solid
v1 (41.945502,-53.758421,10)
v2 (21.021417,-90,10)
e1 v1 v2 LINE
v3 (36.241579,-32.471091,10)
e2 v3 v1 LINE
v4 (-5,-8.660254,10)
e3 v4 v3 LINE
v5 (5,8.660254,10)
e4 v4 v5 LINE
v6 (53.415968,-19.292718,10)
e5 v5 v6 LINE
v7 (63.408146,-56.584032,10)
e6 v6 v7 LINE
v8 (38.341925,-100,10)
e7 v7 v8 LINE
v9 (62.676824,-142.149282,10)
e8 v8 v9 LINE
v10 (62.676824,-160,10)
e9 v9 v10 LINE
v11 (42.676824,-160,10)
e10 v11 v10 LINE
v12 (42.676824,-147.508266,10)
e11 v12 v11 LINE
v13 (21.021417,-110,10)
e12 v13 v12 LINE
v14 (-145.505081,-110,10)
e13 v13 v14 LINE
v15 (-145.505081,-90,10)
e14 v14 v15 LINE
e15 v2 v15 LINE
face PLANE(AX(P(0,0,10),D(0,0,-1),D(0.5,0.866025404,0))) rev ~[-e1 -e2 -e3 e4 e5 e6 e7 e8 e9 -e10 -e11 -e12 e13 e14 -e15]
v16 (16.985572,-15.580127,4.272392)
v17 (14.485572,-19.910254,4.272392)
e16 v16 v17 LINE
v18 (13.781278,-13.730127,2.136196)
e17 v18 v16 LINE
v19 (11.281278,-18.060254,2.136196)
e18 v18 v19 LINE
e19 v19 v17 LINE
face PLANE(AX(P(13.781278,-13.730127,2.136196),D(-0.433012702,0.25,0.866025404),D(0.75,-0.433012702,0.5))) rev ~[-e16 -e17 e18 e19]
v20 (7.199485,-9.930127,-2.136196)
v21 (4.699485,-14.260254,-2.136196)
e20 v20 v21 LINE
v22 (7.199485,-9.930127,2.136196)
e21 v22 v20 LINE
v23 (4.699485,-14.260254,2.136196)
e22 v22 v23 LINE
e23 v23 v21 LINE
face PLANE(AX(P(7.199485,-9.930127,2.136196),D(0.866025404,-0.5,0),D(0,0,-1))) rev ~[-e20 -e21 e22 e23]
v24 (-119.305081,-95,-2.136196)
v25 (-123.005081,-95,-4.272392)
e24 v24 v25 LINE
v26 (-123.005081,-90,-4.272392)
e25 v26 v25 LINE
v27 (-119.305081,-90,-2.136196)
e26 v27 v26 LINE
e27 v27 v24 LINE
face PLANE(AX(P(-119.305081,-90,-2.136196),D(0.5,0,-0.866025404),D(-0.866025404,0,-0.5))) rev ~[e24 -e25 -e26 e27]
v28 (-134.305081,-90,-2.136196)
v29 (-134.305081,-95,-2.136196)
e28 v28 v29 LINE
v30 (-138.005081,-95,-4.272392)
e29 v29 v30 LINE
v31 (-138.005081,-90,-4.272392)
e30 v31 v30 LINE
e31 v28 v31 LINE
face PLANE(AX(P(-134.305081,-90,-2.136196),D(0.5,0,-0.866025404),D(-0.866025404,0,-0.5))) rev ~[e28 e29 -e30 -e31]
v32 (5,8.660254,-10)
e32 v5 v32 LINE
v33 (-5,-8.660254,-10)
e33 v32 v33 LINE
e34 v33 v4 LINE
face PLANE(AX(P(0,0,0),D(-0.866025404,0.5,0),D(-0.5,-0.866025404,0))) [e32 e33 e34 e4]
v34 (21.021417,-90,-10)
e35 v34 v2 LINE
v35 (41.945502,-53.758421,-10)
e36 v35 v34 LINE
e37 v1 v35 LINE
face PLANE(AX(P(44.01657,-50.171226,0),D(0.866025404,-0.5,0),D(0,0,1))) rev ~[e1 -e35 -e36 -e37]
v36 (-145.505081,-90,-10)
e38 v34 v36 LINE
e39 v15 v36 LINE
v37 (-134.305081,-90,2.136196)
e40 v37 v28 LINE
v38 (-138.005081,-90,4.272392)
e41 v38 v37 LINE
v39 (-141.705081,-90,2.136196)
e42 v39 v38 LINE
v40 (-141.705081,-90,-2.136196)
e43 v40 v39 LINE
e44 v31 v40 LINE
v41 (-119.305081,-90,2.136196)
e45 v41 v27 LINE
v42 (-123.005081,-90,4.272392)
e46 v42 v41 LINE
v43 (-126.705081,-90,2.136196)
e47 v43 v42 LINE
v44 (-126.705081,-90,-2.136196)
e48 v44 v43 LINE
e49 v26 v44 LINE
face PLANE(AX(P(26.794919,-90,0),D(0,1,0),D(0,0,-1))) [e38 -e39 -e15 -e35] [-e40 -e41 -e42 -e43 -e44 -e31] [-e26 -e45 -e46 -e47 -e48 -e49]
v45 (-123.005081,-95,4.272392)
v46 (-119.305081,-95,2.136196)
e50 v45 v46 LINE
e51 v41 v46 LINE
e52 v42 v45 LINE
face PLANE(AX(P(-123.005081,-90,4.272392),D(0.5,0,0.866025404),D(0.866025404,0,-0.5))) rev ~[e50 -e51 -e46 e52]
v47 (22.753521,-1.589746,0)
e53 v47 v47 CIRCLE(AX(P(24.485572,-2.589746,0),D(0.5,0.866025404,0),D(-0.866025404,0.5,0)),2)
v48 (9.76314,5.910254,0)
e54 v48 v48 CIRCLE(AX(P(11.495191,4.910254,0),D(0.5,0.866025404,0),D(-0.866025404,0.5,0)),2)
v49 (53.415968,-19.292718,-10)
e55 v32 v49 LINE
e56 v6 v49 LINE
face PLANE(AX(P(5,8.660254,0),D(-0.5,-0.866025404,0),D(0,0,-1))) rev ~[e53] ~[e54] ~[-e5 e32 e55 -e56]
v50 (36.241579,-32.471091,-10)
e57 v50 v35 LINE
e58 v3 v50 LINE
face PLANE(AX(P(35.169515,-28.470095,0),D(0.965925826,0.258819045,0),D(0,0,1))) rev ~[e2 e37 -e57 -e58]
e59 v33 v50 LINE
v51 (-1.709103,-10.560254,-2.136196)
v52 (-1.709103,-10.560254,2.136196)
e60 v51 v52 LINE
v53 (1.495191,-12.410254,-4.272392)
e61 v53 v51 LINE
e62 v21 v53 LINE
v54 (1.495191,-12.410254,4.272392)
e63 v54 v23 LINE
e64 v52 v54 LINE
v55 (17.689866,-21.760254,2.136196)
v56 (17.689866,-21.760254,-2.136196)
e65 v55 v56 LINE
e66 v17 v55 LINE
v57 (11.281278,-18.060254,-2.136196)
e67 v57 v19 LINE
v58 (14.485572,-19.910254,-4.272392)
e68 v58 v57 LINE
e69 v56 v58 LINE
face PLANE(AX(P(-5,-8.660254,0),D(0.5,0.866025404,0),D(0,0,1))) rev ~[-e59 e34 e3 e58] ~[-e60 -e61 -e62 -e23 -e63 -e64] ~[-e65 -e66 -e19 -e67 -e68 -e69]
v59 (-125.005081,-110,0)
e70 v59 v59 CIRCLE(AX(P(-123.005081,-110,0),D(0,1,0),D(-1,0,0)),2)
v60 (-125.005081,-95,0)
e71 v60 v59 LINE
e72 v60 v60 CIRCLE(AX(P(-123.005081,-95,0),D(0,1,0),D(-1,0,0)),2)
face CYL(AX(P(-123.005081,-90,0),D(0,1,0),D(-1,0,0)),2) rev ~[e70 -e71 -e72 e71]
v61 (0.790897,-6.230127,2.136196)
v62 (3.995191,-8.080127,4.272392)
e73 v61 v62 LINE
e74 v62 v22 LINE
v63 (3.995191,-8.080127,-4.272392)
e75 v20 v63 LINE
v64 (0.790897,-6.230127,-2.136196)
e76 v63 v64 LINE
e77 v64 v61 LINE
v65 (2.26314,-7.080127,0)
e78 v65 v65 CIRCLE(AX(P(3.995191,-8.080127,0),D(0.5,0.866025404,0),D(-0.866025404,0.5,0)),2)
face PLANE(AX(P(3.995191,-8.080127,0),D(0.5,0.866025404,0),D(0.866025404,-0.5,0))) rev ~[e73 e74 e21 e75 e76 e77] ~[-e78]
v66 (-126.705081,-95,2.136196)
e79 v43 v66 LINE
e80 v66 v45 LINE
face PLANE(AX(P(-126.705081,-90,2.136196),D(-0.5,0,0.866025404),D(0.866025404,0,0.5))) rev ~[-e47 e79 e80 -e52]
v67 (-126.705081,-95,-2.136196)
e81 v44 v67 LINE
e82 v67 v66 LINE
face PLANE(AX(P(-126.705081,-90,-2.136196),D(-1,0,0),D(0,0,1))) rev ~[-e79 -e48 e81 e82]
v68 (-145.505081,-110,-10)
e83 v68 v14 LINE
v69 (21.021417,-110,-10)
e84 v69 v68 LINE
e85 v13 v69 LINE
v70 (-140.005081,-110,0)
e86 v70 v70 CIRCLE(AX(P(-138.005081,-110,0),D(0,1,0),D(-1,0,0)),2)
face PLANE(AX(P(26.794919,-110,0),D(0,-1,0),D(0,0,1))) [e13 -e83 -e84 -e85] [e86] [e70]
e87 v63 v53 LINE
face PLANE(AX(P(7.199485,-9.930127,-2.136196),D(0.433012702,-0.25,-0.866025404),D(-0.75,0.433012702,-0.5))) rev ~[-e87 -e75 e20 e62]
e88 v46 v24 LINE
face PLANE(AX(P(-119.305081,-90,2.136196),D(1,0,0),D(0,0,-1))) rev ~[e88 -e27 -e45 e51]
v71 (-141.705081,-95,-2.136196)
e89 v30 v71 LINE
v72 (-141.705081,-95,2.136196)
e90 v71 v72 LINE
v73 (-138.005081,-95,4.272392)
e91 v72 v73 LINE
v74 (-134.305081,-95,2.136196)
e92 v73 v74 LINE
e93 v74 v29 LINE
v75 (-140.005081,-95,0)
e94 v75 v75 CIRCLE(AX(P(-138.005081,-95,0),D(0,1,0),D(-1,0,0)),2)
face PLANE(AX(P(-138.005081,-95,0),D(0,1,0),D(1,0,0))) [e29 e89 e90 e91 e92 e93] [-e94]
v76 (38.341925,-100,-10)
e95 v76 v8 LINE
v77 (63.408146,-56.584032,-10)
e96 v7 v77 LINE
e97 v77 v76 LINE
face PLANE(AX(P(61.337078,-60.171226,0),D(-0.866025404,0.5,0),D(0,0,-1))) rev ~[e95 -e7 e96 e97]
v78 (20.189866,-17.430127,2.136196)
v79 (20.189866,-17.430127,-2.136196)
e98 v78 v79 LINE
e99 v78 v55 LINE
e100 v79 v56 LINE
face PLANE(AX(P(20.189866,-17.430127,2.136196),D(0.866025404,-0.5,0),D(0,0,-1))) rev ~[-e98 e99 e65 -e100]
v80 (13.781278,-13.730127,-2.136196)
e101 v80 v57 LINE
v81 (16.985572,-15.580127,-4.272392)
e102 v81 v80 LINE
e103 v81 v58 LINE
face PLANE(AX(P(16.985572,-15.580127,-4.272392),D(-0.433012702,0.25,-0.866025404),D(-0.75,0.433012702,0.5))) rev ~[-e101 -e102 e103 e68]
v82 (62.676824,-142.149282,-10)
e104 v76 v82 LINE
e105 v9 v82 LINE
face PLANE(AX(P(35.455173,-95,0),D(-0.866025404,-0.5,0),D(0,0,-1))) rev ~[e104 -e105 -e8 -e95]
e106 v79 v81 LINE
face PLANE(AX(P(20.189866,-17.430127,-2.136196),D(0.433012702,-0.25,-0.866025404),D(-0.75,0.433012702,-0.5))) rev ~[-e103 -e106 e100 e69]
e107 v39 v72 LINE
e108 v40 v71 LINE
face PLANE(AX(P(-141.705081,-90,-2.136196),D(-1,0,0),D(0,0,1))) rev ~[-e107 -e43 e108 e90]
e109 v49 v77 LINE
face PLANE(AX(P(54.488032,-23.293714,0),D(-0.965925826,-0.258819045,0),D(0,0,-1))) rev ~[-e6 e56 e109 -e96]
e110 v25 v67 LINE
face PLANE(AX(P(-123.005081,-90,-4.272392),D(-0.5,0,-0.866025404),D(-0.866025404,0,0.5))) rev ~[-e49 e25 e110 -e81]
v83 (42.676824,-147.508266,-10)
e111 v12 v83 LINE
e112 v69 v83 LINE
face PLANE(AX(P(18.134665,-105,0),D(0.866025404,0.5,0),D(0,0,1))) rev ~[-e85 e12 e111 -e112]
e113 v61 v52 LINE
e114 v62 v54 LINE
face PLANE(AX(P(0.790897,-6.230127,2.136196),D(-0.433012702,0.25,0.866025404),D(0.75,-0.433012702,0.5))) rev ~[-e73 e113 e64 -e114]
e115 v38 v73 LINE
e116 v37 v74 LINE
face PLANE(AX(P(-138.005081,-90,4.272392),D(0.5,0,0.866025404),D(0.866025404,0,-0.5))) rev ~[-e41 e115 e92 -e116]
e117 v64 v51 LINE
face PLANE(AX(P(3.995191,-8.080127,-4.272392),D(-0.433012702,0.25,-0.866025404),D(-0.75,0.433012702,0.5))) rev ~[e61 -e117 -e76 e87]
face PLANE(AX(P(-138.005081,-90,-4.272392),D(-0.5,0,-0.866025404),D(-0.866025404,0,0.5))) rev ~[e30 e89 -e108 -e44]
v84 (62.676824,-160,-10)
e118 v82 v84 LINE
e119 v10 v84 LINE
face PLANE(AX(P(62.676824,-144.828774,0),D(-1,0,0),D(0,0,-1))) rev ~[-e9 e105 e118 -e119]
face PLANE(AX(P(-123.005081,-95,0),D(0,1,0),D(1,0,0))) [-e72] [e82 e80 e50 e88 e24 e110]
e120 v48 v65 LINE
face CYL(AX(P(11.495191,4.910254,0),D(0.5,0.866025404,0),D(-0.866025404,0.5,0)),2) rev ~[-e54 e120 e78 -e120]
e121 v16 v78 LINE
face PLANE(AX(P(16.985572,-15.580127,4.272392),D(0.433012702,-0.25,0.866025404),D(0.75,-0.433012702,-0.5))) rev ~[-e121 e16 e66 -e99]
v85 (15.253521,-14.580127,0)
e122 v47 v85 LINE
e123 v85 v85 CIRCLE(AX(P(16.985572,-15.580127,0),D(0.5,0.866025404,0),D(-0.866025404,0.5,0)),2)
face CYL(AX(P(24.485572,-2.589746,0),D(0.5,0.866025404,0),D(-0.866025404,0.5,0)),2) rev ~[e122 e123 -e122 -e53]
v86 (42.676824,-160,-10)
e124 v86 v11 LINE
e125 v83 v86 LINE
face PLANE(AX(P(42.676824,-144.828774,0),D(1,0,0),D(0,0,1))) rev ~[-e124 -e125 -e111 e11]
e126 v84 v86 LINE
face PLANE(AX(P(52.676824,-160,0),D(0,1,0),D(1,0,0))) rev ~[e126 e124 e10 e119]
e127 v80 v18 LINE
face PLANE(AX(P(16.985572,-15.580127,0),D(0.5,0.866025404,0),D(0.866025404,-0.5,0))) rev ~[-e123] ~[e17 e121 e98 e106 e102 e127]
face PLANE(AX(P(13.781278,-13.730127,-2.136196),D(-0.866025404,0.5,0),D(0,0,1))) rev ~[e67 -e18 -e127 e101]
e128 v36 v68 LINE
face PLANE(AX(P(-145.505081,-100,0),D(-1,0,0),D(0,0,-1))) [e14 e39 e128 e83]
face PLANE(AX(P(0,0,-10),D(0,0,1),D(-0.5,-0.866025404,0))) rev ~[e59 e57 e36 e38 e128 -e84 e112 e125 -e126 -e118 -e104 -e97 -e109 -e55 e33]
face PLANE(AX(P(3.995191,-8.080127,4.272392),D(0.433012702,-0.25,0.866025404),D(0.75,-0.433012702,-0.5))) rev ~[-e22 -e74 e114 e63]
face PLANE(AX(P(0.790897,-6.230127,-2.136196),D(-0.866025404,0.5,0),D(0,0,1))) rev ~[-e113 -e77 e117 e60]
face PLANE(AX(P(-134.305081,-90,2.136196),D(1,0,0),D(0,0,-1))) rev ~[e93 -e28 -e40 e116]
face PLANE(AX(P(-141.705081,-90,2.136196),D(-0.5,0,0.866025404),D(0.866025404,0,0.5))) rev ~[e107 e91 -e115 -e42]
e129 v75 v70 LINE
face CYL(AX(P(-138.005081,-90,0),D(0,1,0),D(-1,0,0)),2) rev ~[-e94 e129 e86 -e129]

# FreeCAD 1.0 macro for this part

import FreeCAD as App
import Part
import Sketcher
Q = App.Units.Quantity


def add_polygon(sketch, points):
    """Adds a closed chain of lines whose ends are joined by coincident constraints."""
    first, n = sketch.GeometryCount, len(points)
    for a, b in zip(points, points[1:] + points[:1]):
        sketch.addGeometry(Part.LineSegment(App.Vector(*a, 0), App.Vector(*b, 0)), False)
    for i in range(n):
        sketch.addConstraint(Sketcher.Constraint("Coincident", first + i, 2, first + (i + 1) % n, 1))

doc = App.newDocument("Part")
body = doc.addObject("PartDesign::Body", "Body")

# Sketch on an angled plane
sketch1 = body.newObject("Sketcher::SketchObject", "Sketch")
sketch1.Placement = App.Placement(App.Vector(0, 0, 0), App.Rotation(App.Vector(0, 0, 1), App.Vector(0.5, 0.866025404, 0), App.Vector(-0.866025404, 0.5, 0), "ZXY"))
add_polygon(sketch1, [(-10, 10), (-10, -10), (10, -10), (10, 10)])  # lines 0-3
sketch1.addConstraint([
    Sketcher.Constraint("Vertical", 0),
    Sketcher.Constraint("Horizontal", 1),
    Sketcher.Constraint("Vertical", 2),
    Sketcher.Constraint("Horizontal", 3),
    Sketcher.Constraint("Symmetric", 0, 2, 2, 2, -1, 1),
    Sketcher.Constraint("Equal", 3, 0),
    Sketcher.Constraint("DistanceX", 1, 1, 1, 2, 20.0),
])

# Sketch on XY plane
sketch2 = body.newObject("Sketcher::SketchObject", "Sketch001")
sketch2.AttachmentSupport = (doc.getObject("XY_Plane"), [""])
sketch2.MapMode = "FlatFace"
sketch2.addGeometry([
    Part.LineSegment(App.Vector(0, 0, 0), App.Vector(45, -26, 0)),  # 0
    Part.LineSegment(App.Vector(45, -26, 0), App.Vector(53, -55, 0)),  # 1
    Part.LineSegment(App.Vector(53, -55, 0), App.Vector(27, -100, 0)),  # 2
    Part.LineSegment(App.Vector(27, -100, 0), App.Vector(53, -145, 0)),  # 3
    Part.LineSegment(App.Vector(53, -145, 0), App.Vector(53, -160, 0)),  # 4
], False)
sketch2.addConstraint([
    Sketcher.Constraint("Coincident", 0, 2, 1, 1),
    Sketcher.Constraint("Coincident", 1, 2, 2, 1),
    Sketcher.Constraint("Coincident", 2, 2, 3, 1),
    Sketcher.Constraint("Coincident", 3, 2, 4, 1),
    Sketcher.Constraint("Vertical", 4),
    Sketcher.Constraint("Coincident", 0, 1, -1, 1),
    Sketcher.Constraint("Perpendicular", 0, 2),
    Sketcher.Constraint("Vertical", 1, 2, 3, 2),
    Sketcher.Constraint("Equal", 0, 2),
    Sketcher.Constraint("Equal", 2, 3),
    Sketcher.Constraint("Angle", 0, Q("-30 deg")),
    Sketcher.Constraint("Angle", 1, Q("-75 deg")),
    Sketcher.Constraint("DistanceY", 2, 2, -1, 1, 100.0),
    Sketcher.Constraint("DistanceY", 4, 2, -1, 1, 160.0),
    Sketcher.Constraint("Distance", 0, 51.763809),
])
doc.recompute()

additivepipe = body.newObject("PartDesign::AdditivePipe", "AdditivePipe")
additivepipe.Profile = sketch1
additivepipe.Spine = (sketch2, ["Edge1", "Edge2", "Edge3", "Edge4", "Edge5"])
additivepipe.Transition = "Right corner"

# Sketch on YZ plane
sketch3 = body.newObject("Sketcher::SketchObject", "Sketch002")
sketch3.AttachmentSupport = (doc.getObject("YZ_Plane"), [""])
sketch3.MapMode = "FlatFace"
sketch3.AttachmentOffset = App.Placement(App.Vector(0, 0, -145.505081), App.Rotation())
add_polygon(sketch3, [(-90, -10), (-110, -10), (-110, 10), (-90, 10)])  # lines 0-3
sketch3.addConstraint([
    Sketcher.Constraint("Horizontal", 0),
    Sketcher.Constraint("Vertical", 1),
    Sketcher.Constraint("Horizontal", 2),
    Sketcher.Constraint("Vertical", 3),
    Sketcher.Constraint("Equal", 2, 1),
    Sketcher.Constraint("DistanceX", 0, 2, 0, 1, 20.0),
    Sketcher.Constraint("DistanceX", 0, 2, -1, 1, 110.0),
    Sketcher.Constraint("DistanceY", 0, 2, -1, 1, 10.0),
])

# Sketch on XY plane
sketch4 = body.newObject("Sketcher::SketchObject", "Sketch003")
sketch4.AttachmentSupport = (doc.getObject("XY_Plane"), [""])
sketch4.MapMode = "FlatFace"
sketch4.addGeometry(Part.LineSegment(App.Vector(27, -100, 0), App.Vector(-146, -100, 0)), False)
sketch4.addConstraint([
    Sketcher.Constraint("Horizontal", 0),
    Sketcher.Constraint("DistanceX", 0, 2, 0, 1, 172.3),
    Sketcher.Constraint("DistanceY", 0, 1, -1, 1, 100.0),
    Sketcher.Constraint("DistanceX", -1, 1, 0, 1, 26.794919),
])
doc.recompute()

additivepipe2 = body.newObject("PartDesign::AdditivePipe", "AdditivePipe001")
additivepipe2.Profile = sketch3
additivepipe2.Spine = (sketch4, ["Edge1"])

# Sketch on an angled plane
sketch5 = body.newObject("Sketcher::SketchObject", "Sketch004")
sketch5.Placement = App.Placement(App.Vector(5, 8.660254, 0), App.Rotation(App.Vector(0.866025404, -0.5, 0), App.Vector(0, 0, -1), App.Vector(0.5, 0.866025404, 0), "ZXY"))
sketch5.addGeometry(Part.Circle(App.Vector(7.5, 0, 0), App.Vector(0, 0, 1), 2), False)
sketch5.addConstraint([
    Sketcher.Constraint("PointOnObject", 0, 3, -1),
    Sketcher.Constraint("Diameter", 0, 4.0),
    Sketcher.Constraint("DistanceX", -1, 1, 0, 3, 7.5),
])
pocket1 = body.newObject("PartDesign::Pocket", "Pocket")
pocket1.Profile = sketch5
pocket1.Type = "UpToFirst"

# Sketch on an angled plane
sketch6 = body.newObject("Sketcher::SketchObject", "Sketch005")
sketch6.Placement = App.Placement(App.Vector(5, 8.660254, 0), App.Rotation(App.Vector(0.866025404, -0.5, 0), App.Vector(0, 0, -1), App.Vector(0.5, 0.866025404, 0), "ZXY"))
sketch6.addGeometry(Part.Circle(App.Vector(22.5, 0, 0), App.Vector(0, 0, 1), 2), False)
sketch6.addConstraint([
    Sketcher.Constraint("PointOnObject", 0, 3, -1),
    Sketcher.Constraint("Diameter", 0, 4.0),
    Sketcher.Constraint("DistanceX", -1, 1, 0, 3, 22.5),
])
pocket2 = body.newObject("PartDesign::Pocket", "Pocket001")
pocket2.Profile = sketch6
pocket2.Type = "UpToFirst"

# Sketch on an angled plane
sketch7 = body.newObject("Sketcher::SketchObject", "Sketch006")
sketch7.Placement = App.Placement(App.Vector(-2.5, -4.330127, 0), App.Rotation(App.Vector(0.866025404, -0.5, 0), App.Vector(0, 0, -1), App.Vector(0.5, 0.866025404, 0), "ZXY"))
add_polygon(sketch7, [(11.2, -2.1), (11.2, 2.1), (7.5, 4.3), (3.8, 2.1), (3.8, -2.1), (7.5, -4.3)])  # lines 0-5
sketch7.addGeometry(Part.Circle(App.Vector(7.5, 0, 0), App.Vector(0, 0, 1), 2), False)  # 6
add_polygon(sketch7, [(26.2, -2.1), (26.2, 2.1), (22.5, 4.3), (18.8, 2.1), (18.8, -2.1), (22.5, -4.3)])  # lines 7-12
sketch7.addGeometry(Part.Circle(App.Vector(22.5, 0, 0), App.Vector(0, 0, 1), 2), False)  # 13
sketch7.addConstraint([
    Sketcher.Constraint("Vertical", 0),
    Sketcher.Constraint("Vertical", 3),
    Sketcher.Constraint("Vertical", 7),
    Sketcher.Constraint("Vertical", 10),
    Sketcher.Constraint("Equal", 6, 13),
    Sketcher.Constraint("Symmetric", 1, 2, 4, 2, -1),
    Sketcher.Constraint("Symmetric", 8, 2, 11, 2, -1),
    Sketcher.Constraint("PointOnObject", 6, 3, -1),
    Sketcher.Constraint("PointOnObject", 13, 3, -1),
    Sketcher.Constraint("Parallel", 1, 4),
    Sketcher.Constraint("Parallel", 2, 5),
    Sketcher.Constraint("Parallel", 4, 8),
    Sketcher.Constraint("Parallel", 5, 9),
    Sketcher.Constraint("Parallel", 8, 11),
    Sketcher.Constraint("Parallel", 9, 12),
    Sketcher.Constraint("Horizontal", 0, 2, 2, 2),
    Sketcher.Constraint("Horizontal", 3, 2, 5, 2),
    Sketcher.Constraint("Horizontal", 2, 2, 7, 2),
    Sketcher.Constraint("Horizontal", 1, 2, 8, 2),
    Sketcher.Constraint("Horizontal", 7, 2, 9, 2),
    Sketcher.Constraint("Vertical", 6, 3, 1, 2),
    Sketcher.Constraint("Vertical", 13, 3, 8, 2),
    Sketcher.Constraint("Diameter", 6, 4.0),
    Sketcher.Constraint("Angle", 1, Q("150 deg")),
    Sketcher.Constraint("DistanceX", 6, 3, 13, 3, 15.0),
    Sketcher.Constraint("DistanceX", -1, 1, 6, 3, 7.5),
    Sketcher.Constraint("DistanceX", -1, 1, 0, 2, 11.2),
    Sketcher.Constraint("DistanceY", 0, 1, 0, 2, 4.272392),
])
pocket3 = body.newObject("PartDesign::Pocket", "Pocket002")
pocket3.Profile = sketch7
pocket3.Length = 5

# Sketch on XZ plane
sketch8 = body.newObject("Sketcher::SketchObject", "Sketch007")
sketch8.AttachmentSupport = (doc.getObject("XZ_Plane"), [""])
sketch8.MapMode = "FlatFace"
sketch8.AttachmentOffset = App.Placement(App.Vector(0, 0, 90), App.Rotation())
sketch8.addGeometry(Part.Circle(App.Vector(-138, 0, 0), App.Vector(0, 0, 1), 2), False)
sketch8.addConstraint([
    Sketcher.Constraint("PointOnObject", 0, 3, -1),
    Sketcher.Constraint("Diameter", 0, 4.0),
    Sketcher.Constraint("DistanceX", 0, 3, -1, 1, 138.005081),
])
pocket4 = body.newObject("PartDesign::Pocket", "Pocket003")
pocket4.Profile = sketch8
pocket4.Type = "UpToFirst"
pocket4.Reversed = True

# Sketch on XZ plane
sketch9 = body.newObject("Sketcher::SketchObject", "Sketch008")
sketch9.AttachmentSupport = (doc.getObject("XZ_Plane"), [""])
sketch9.MapMode = "FlatFace"
sketch9.AttachmentOffset = App.Placement(App.Vector(0, 0, 90), App.Rotation())
sketch9.addGeometry(Part.Circle(App.Vector(-123, 0, 0), App.Vector(0, 0, 1), 2), False)
sketch9.addConstraint([
    Sketcher.Constraint("PointOnObject", 0, 3, -1),
    Sketcher.Constraint("Diameter", 0, 4.0),
    Sketcher.Constraint("DistanceX", 0, 3, -1, 1, 123.005081),
])
pocket5 = body.newObject("PartDesign::Pocket", "Pocket004")
pocket5.Profile = sketch9
pocket5.Type = "UpToFirst"
pocket5.Reversed = True

# Sketch on XZ plane
sketch10 = body.newObject("Sketcher::SketchObject", "Sketch009")
sketch10.AttachmentSupport = (doc.getObject("XZ_Plane"), [""])
sketch10.MapMode = "FlatFace"
sketch10.AttachmentOffset = App.Placement(App.Vector(0, 0, 90), App.Rotation())
add_polygon(sketch10, [(-134.3, 2.1), (-134.3, -2.1), (-138, -4.3), (-141.7, -2.1), (-141.7, 2.1), (-138, 4.3)])  # lines 0-5
sketch10.addGeometry(Part.Circle(App.Vector(-138, 0, 0), App.Vector(0, 0, 1), 2), False)  # 6
add_polygon(sketch10, [(-119.3, 2.1), (-119.3, -2.1), (-123, -4.3), (-126.7, -2.1), (-126.7, 2.1), (-123, 4.3)])  # lines 7-12
sketch10.addGeometry(Part.Circle(App.Vector(-123, 0, 0), App.Vector(0, 0, 1), 2), False)  # 13
sketch10.addConstraint([
    Sketcher.Constraint("Vertical", 0),
    Sketcher.Constraint("Vertical", 3),
    Sketcher.Constraint("Vertical", 7),
    Sketcher.Constraint("Vertical", 10),
    Sketcher.Constraint("Equal", 6, 13),
    Sketcher.Constraint("Symmetric", 1, 2, 4, 2, -1),
    Sketcher.Constraint("Symmetric", 8, 2, 11, 2, -1),
    Sketcher.Constraint("PointOnObject", 6, 3, -1),
    Sketcher.Constraint("PointOnObject", 13, 3, -1),
    Sketcher.Constraint("Parallel", 1, 4),
    Sketcher.Constraint("Parallel", 2, 5),
    Sketcher.Constraint("Parallel", 4, 8),
    Sketcher.Constraint("Parallel", 5, 9),
    Sketcher.Constraint("Parallel", 8, 11),
    Sketcher.Constraint("Parallel", 9, 12),
    Sketcher.Constraint("Horizontal", 0, 2, 2, 2),
    Sketcher.Constraint("Horizontal", 3, 2, 5, 2),
    Sketcher.Constraint("Horizontal", 2, 2, 7, 2),
    Sketcher.Constraint("Horizontal", 1, 2, 8, 2),
    Sketcher.Constraint("Horizontal", 7, 2, 9, 2),
    Sketcher.Constraint("Vertical", 6, 3, 1, 2),
    Sketcher.Constraint("Vertical", 13, 3, 8, 2),
    Sketcher.Constraint("Diameter", 6, 4.0),
    Sketcher.Constraint("Angle", 1, Q("-150 deg")),
    Sketcher.Constraint("DistanceX", 6, 3, 13, 3, 15.0),
    Sketcher.Constraint("DistanceX", 6, 3, 0, 2, 3.7),
    Sketcher.Constraint("DistanceY", 0, 2, 0, 1, 4.272392),
    Sketcher.Constraint("DistanceX", 6, 3, -1, 1, 138.005081),
])
pocket6 = body.newObject("PartDesign::Pocket", "Pocket005")
pocket6.Profile = sketch10
pocket6.Length = 5
pocket6.Reversed = True

doc.recompute()
